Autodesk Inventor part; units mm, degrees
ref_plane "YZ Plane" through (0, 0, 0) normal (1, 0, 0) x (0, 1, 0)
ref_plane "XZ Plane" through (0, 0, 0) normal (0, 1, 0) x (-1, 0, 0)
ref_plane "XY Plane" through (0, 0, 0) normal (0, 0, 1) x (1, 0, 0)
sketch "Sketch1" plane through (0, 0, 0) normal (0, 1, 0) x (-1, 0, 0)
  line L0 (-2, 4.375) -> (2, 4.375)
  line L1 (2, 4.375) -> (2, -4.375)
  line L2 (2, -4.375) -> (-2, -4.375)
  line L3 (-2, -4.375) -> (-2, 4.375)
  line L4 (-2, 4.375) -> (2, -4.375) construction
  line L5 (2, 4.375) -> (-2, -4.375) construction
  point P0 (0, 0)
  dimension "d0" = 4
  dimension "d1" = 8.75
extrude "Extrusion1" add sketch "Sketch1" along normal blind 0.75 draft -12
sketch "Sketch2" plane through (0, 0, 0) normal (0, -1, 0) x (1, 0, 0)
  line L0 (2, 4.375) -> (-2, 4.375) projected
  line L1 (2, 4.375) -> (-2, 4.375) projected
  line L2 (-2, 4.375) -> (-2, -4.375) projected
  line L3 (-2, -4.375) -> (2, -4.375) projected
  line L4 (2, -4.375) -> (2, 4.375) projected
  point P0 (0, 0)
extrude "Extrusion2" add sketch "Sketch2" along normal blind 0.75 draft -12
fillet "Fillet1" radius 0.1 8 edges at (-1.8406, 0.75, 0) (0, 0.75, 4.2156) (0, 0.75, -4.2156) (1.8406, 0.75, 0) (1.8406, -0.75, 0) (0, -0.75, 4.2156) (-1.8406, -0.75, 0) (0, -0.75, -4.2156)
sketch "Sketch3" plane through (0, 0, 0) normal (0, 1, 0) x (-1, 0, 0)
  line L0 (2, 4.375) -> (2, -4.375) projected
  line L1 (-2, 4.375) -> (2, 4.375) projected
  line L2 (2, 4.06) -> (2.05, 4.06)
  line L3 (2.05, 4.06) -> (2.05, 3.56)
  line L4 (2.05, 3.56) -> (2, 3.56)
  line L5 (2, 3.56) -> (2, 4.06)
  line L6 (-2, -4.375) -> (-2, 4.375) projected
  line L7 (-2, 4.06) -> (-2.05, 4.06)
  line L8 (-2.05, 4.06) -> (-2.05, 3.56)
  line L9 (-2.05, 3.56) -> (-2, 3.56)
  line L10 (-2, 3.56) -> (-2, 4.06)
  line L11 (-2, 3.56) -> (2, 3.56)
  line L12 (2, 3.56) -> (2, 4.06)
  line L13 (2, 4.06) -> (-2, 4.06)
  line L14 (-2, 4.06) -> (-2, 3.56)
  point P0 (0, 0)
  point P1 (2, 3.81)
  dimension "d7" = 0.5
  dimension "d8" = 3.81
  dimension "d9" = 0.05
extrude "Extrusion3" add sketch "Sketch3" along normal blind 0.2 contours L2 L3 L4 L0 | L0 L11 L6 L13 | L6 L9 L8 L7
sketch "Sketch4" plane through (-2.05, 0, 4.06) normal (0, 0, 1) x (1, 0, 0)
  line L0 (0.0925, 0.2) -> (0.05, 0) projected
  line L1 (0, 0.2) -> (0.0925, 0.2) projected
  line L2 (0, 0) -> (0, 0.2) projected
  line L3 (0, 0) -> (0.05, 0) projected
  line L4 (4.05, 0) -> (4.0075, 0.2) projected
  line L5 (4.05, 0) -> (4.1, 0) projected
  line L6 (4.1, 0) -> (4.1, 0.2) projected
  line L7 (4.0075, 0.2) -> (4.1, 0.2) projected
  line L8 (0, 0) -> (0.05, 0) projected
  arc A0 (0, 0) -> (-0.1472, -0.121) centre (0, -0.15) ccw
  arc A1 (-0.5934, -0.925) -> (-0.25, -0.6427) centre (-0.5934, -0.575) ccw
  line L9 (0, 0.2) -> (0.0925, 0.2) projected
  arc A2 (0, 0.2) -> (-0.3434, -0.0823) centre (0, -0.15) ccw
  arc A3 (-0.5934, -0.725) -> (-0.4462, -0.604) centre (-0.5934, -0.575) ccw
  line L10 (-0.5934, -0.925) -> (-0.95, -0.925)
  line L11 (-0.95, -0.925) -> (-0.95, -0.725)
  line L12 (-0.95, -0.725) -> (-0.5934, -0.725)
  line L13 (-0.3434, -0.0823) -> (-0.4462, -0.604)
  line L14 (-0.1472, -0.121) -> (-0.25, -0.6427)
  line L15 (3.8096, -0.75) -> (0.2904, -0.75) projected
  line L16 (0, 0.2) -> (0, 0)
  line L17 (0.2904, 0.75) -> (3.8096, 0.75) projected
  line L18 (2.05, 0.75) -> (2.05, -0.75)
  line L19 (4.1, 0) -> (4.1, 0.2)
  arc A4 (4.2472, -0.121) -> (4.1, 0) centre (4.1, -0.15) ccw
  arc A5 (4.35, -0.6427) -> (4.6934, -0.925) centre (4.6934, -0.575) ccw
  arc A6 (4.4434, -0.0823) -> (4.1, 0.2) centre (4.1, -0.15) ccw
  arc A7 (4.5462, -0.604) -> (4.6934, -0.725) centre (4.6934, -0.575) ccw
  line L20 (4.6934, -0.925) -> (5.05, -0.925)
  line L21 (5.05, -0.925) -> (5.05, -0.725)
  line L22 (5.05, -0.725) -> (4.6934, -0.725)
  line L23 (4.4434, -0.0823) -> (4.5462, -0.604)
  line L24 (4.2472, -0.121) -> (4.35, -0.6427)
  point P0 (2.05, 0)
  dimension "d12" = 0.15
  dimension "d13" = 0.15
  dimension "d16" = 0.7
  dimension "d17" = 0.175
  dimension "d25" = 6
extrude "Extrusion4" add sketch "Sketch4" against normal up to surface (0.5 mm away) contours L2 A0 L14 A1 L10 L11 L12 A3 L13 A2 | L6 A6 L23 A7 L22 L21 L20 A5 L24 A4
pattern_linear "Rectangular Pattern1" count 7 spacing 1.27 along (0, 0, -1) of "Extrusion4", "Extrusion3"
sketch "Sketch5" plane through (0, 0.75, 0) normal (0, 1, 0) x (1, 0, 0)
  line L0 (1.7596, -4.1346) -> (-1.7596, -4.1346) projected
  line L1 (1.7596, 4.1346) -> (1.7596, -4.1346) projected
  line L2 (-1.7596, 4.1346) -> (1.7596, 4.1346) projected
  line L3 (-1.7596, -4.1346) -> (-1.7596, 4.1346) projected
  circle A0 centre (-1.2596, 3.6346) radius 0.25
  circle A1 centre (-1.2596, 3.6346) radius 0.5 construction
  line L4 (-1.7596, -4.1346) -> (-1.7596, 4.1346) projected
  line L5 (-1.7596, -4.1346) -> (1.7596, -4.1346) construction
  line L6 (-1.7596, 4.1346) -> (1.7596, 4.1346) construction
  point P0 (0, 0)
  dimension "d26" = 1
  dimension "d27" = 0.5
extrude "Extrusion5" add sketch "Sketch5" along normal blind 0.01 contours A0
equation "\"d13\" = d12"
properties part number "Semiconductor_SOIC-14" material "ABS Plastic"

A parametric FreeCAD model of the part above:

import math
import FreeCAD as App
import Part
import Sketcher

V = App.Vector
Q = App.Units.Quantity


def edges_at(feature, points):
    """Names of the edges that pass closest to the given points."""
    edges = feature.Shape.Edges
    near = lambda p: min(range(len(edges)), key=lambda i: edges[i].distToShape(Part.Vertex(*p))[0])
    return sorted({f"Edge{near(p) + 1}" for p in points})


def add_polygon(sketch, points):
    """Adds a closed chain of lines whose ends are joined by coincident constraints."""
    first, n = sketch.GeometryCount, len(points)
    for a, b in zip(points, points[1:] + points[:1]):
        sketch.addGeometry(Part.LineSegment(App.Vector(*a, 0), App.Vector(*b, 0)), False)
    for i in range(n):
        sketch.addConstraint(Sketcher.Constraint("Coincident", first + i, 2, first + (i + 1) % n, 1))

doc = App.newDocument("Part")
params = doc.addObject("Spreadsheet::Sheet", "Params")
for row, (alias, value) in enumerate([
    ("sketch1_width", "4 mm"),
    ("sketch1_height", "8.75 mm"),
    ("pad1_length", "0.75 mm"),
    ("pad1_taper", "-12 deg"),
    ("sketch2_width", "4 mm"),
    ("sketch2_height", "8.75 mm"),
    ("pad2_length", "0.75 mm"),
    ("pad2_taper", "-12 deg"),
    ("fillet_radius", "0.1 mm"),
    ("sketch3_height", "0.5 mm"),
    ("sketch3_width", "4.1 mm"),
    ("pad3_length", "0.2 mm"),
    ("sketch4_radius", "0.35 mm"),
    ("sketch4_radius2", "0.15 mm"),
    ("pad4_length", "0.5 mm"),
    ("linearpattern_pitch", "1.27 mm"),
    ("sketch5_diameter", "0.5 mm"),
    ("pad5_length", "0.01 mm"),
], start=1):
    params.set(f"A{row}", alias)
    params.set(f"B{row}", "=" + value)
    params.setAlias(f"B{row}", alias)

body = doc.addObject("PartDesign::Body", "Body")

sketch1 = body.newObject("Sketcher::SketchObject", "Sketch")
sketch1.AttachmentSupport = (doc.getObject("XZ_Plane"), [""])
sketch1.MapMode = "FlatFace"
add_polygon(sketch1, [(-2, 4.375), (2, 4.375), (2, -4.375), (-2, -4.375)])
sketch1.addConstraint([
    Sketcher.Constraint("Horizontal", 0),
    Sketcher.Constraint("Vertical", 1),
    Sketcher.Constraint("Horizontal", 2),
    Sketcher.Constraint("Vertical", 3),
    Sketcher.Constraint("Symmetric", 0, 2, 2, 2, -1, 1),
    Sketcher.Constraint("DistanceX", 0, 1, 0, 2, Q("4 mm")),
    Sketcher.Constraint("DistanceY", 1, 2, 1, 1, Q("8.75 mm")),
])
sketch1.setExpression("Constraints[9]", "Params.sketch1_width")
sketch1.setExpression("Constraints[10]", "Params.sketch1_height")
pad1 = body.newObject("PartDesign::Pad", "Pad")
pad1.Profile = sketch1
pad1.setExpression("Length", "Params.pad1_length")
pad1.Reversed = True
pad1.setExpression("TaperAngle", "Params.pad1_taper")

sketch2 = body.newObject("Sketcher::SketchObject", "Sketch001")
sketch2.AttachmentSupport = (doc.getObject("XZ_Plane"), [""])
sketch2.MapMode = "FlatFace"
add_polygon(sketch2, [(2, -4.375), (2, 4.375), (-2, 4.375), (-2, -4.375)])
sketch2.addConstraint([
    Sketcher.Constraint("Vertical", 0),
    Sketcher.Constraint("Horizontal", 1),
    Sketcher.Constraint("Vertical", 2),
    Sketcher.Constraint("Horizontal", 3),
    Sketcher.Constraint("Symmetric", 0, 2, 2, 2, -1, 1),
    Sketcher.Constraint("DistanceX", 1, 2, 1, 1, Q("4 mm")),
    Sketcher.Constraint("DistanceY", 0, 1, 0, 2, Q("8.75 mm")),
])
sketch2.setExpression("Constraints[9]", "Params.sketch2_width")
sketch2.setExpression("Constraints[10]", "Params.sketch2_height")
pad2 = body.newObject("PartDesign::Pad", "Pad001")
pad2.Profile = sketch2
pad2.setExpression("Length", "Params.pad2_length")
pad2.setExpression("TaperAngle", "Params.pad2_taper")
doc.recompute()

fillet = body.newObject("PartDesign::Fillet", "Fillet")
fillet.Base = (pad2, edges_at(pad2, [
    (-1.841, 0.75, 0),
    (0, 0.75, 4.216),
    (0, 0.75, -4.216),
    (1.841, 0.75, 0),
    (1.841, -0.75, 0),
    (0, -0.75, 4.216),
    (-1.841, -0.75, 0),
    (0, -0.75, -4.216),
]))
fillet.setExpression("Radius", "Params.fillet_radius")

sketch3 = body.newObject("Sketcher::SketchObject", "Sketch002")
sketch3.AttachmentSupport = (doc.getObject("XZ_Plane"), [""])
sketch3.MapMode = "FlatFace"
add_polygon(sketch3, [(-2.05, 4.06), (2.05, 4.06), (2.05, 3.56), (-2.05, 3.56)])
sketch3.addConstraint([
    Sketcher.Constraint("Horizontal", 0),
    Sketcher.Constraint("Vertical", 1),
    Sketcher.Constraint("Horizontal", 2),
    Sketcher.Constraint("Vertical", 3),
    Sketcher.Constraint("DistanceY", 1, 2, 1, 1, Q("0.5 mm")),
    Sketcher.Constraint("DistanceX", 0, 1, 0, 2, Q("4.1 mm")),
    Sketcher.Constraint("DistanceX", -1, 1, 0, 2, Q("2.05 mm")),
    Sketcher.Constraint("DistanceY", -1, 1, 0, 2, Q("4.06 mm")),
])
sketch3.setExpression("Constraints[8]", "Params.sketch3_height")
sketch3.setExpression("Constraints[9]", "Params.sketch3_width")
pad3 = body.newObject("PartDesign::Pad", "Pad002")
pad3.Profile = sketch3
pad3.setExpression("Length", "Params.pad3_length")
pad3.Reversed = True

sketch4 = body.newObject("Sketcher::SketchObject", "Sketch003")
sketch4.AttachmentSupport = (doc.getObject("XY_Plane"), [""])
sketch4.MapMode = "FlatFace"
sketch4.AttachmentOffset = App.Placement(V(0, 0, 4.06), App.Rotation())
sketch4.addGeometry([
    Part.LineSegment(V(-2.05, 0, 0), V(-2.05, 0.2, 0)),
    Part.ArcOfCircle(Part.Circle(V(-2.05, -0.15, 0), V(0, 0, 1), 0.35), math.radians(90), math.radians(168.847376)),
    Part.LineSegment(V(-2.3934, -0.0823, 0), V(-2.4962, -0.604, 0)),
    Part.ArcOfCircle(Part.Circle(V(-2.6434, -0.575, 0), V(0, 0, 1), 0.15), math.radians(-90), math.radians(-11.145161)),
    Part.LineSegment(V(-2.6434, -0.725, 0), V(-3, -0.725, 0)),
    Part.LineSegment(V(-3, -0.725, 0), V(-3, -0.925, 0)),
    Part.LineSegment(V(-3, -0.925, 0), V(-2.6434, -0.925, 0)),
    Part.ArcOfCircle(Part.Circle(V(-2.6434, -0.575, 0), V(0, 0, 1), 0.35), math.radians(-90), math.radians(-11.152624)),
    Part.LineSegment(V(-2.3, -0.6427, 0), V(-2.1972, -0.121, 0)),
    Part.ArcOfCircle(Part.Circle(V(-2.05, -0.15, 0), V(0, 0, 1), 0.15), math.radians(90), math.radians(168.854839)),
    Part.LineSegment(V(2.05, 0.2, 0), V(2.05, 0, 0)),
    Part.ArcOfCircle(Part.Circle(V(2.05, -0.15, 0), V(0, 0, 1), 0.150029), math.radians(11.145161), math.radians(90)),
    Part.LineSegment(V(2.1972, -0.121, 0), V(2.3, -0.6427, 0)),
    Part.ArcOfCircle(Part.Circle(V(2.6434, -0.575, 0), V(0, 0, 1), 0.35001), math.radians(-168.847376), math.radians(-90)),
    Part.LineSegment(V(2.6434, -0.925, 0), V(3, -0.925, 0)),
    Part.LineSegment(V(3, -0.925, 0), V(3, -0.725, 0)),
    Part.LineSegment(V(3, -0.725, 0), V(2.6434, -0.725, 0)),
    Part.ArcOfCircle(Part.Circle(V(2.6434, -0.575, 0), V(0, 0, 1), 0.150029), math.radians(-168.854839), math.radians(-90)),
    Part.LineSegment(V(2.4962, -0.604, 0), V(2.3934, -0.0823, 0)),
    Part.ArcOfCircle(Part.Circle(V(2.05, -0.15, 0), V(0, 0, 1), 0.35001), math.radians(11.152624), math.radians(90)),
], False)
sketch4.addConstraint([
    Sketcher.Constraint("Coincident", 0, 2, 1, 1),
    Sketcher.Constraint("Tangent", 1, 2, 2, 1),
    Sketcher.Constraint("Tangent", 2, 2, 3, 2),
    Sketcher.Constraint("Tangent", 3, 1, 4, 1),
    Sketcher.Constraint("Coincident", 4, 2, 5, 1),
    Sketcher.Constraint("Coincident", 5, 2, 6, 1),
    Sketcher.Constraint("Tangent", 6, 2, 7, 1),
    Sketcher.Constraint("Tangent", 7, 2, 8, 1),
    Sketcher.Constraint("Tangent", 8, 2, 9, 2),
    Sketcher.Constraint("Coincident", 9, 1, 0, 1),
    Sketcher.Constraint("Coincident", 10, 2, 11, 2),
    Sketcher.Constraint("Tangent", 11, 1, 12, 1),
    Sketcher.Constraint("Tangent", 12, 2, 13, 1),
    Sketcher.Constraint("Tangent", 13, 2, 14, 1),
    Sketcher.Constraint("Coincident", 14, 2, 15, 1),
    Sketcher.Constraint("Coincident", 15, 2, 16, 1),
    Sketcher.Constraint("Tangent", 16, 2, 17, 2),
    Sketcher.Constraint("Tangent", 17, 1, 18, 1),
    Sketcher.Constraint("Tangent", 18, 2, 19, 1),
    Sketcher.Constraint("Coincident", 19, 2, 10, 1),
    Sketcher.Constraint("Vertical", 0),
    Sketcher.Constraint("Horizontal", 4),
    Sketcher.Constraint("Vertical", 5),
    Sketcher.Constraint("Horizontal", 6),
    Sketcher.Constraint("Vertical", 10),
    Sketcher.Constraint("Horizontal", 14),
    Sketcher.Constraint("Vertical", 15),
    Sketcher.Constraint("Horizontal", 16),
    Sketcher.Constraint("Coincident", 7, 3, 3, 3),
    Sketcher.Constraint("Coincident", 9, 3, 1, 3),
    Sketcher.Constraint("Coincident", 17, 3, 13, 3),
    Sketcher.Constraint("Coincident", 19, 3, 11, 3),
    Sketcher.Constraint("Equal", 1, 7),
    Sketcher.Constraint("Equal", 3, 9),
    Sketcher.Constraint("Equal", 9, 11),
    Sketcher.Constraint("Equal", 7, 13),
    Sketcher.Constraint("Equal", 11, 17),
    Sketcher.Constraint("Equal", 13, 19),
    Sketcher.Constraint("Symmetric", 9, 1, 10, 2, -1, 1),
    Sketcher.Constraint("Symmetric", 1, 3, 11, 3, -2),
    Sketcher.Constraint("Symmetric", 3, 3, 13, 3, -2),
    Sketcher.Constraint("Vertical", 9, 3, 0, 2),
    Sketcher.Constraint("Equal", 6, 14),
    Sketcher.Constraint("Radius", 1, Q("0.35 mm")),
    Sketcher.Constraint("Radius", 3, Q("0.15 mm")),
    Sketcher.Constraint("DistanceX", 12, 2, 14, 2, Q("0.7 mm")),
    Sketcher.Constraint("DistanceX", 4, 2, -1, 1, Q("3 mm")),
    Sketcher.Constraint("DistanceX", 1, 3, 11, 3, Q("4.1 mm")),
    Sketcher.Constraint("DistanceX", 4, 2, 4, 1, Q("0.3566 mm")),
])
sketch4.setExpression("Constraints[43]", "Params.sketch4_radius")
sketch4.setExpression("Constraints[44]", "Params.sketch4_radius2")
pad4 = body.newObject("PartDesign::Pad", "Pad003")
pad4.Profile = sketch4
pad4.setExpression("Length", "Params.pad4_length")
pad4.Reversed = True
doc.recompute()

linearpattern = body.newObject("PartDesign::LinearPattern", "LinearPattern")
linearpattern.Originals = [pad4, pad3]
linearpattern.Direction = (doc.getObject("Z_Axis"), [""])
linearpattern.Mode = "offset"
linearpattern.setExpression("Offset", "Params.linearpattern_pitch")
linearpattern.Occurrences = 7
linearpattern.Reversed = True
body.Tip = linearpattern

sketch5 = body.newObject("Sketcher::SketchObject", "Sketch004")
sketch5.AttachmentSupport = (doc.getObject("XZ_Plane"), [""])
sketch5.MapMode = "FlatFace"
sketch5.AttachmentOffset = App.Placement(V(0, 0, -0.75), App.Rotation())
sketch5.addGeometry(Part.Circle(V(-1.2596, -3.6346, 0), V(0, 0, 1), 0.25), False)
sketch5.addConstraint([
    Sketcher.Constraint("Diameter", 0, Q("0.5 mm")),
    Sketcher.Constraint("DistanceX", 0, 3, -1, 1, Q("1.2596 mm")),
    Sketcher.Constraint("DistanceY", 0, 3, -1, 1, Q("3.6346 mm")),
])
sketch5.setExpression("Constraints[0]", "Params.sketch5_diameter")
pad5 = body.newObject("PartDesign::Pad", "Pad004")
pad5.Profile = sketch5
pad5.setExpression("Length", "Params.pad5_length")
pad5.Reversed = True

doc.recompute()
